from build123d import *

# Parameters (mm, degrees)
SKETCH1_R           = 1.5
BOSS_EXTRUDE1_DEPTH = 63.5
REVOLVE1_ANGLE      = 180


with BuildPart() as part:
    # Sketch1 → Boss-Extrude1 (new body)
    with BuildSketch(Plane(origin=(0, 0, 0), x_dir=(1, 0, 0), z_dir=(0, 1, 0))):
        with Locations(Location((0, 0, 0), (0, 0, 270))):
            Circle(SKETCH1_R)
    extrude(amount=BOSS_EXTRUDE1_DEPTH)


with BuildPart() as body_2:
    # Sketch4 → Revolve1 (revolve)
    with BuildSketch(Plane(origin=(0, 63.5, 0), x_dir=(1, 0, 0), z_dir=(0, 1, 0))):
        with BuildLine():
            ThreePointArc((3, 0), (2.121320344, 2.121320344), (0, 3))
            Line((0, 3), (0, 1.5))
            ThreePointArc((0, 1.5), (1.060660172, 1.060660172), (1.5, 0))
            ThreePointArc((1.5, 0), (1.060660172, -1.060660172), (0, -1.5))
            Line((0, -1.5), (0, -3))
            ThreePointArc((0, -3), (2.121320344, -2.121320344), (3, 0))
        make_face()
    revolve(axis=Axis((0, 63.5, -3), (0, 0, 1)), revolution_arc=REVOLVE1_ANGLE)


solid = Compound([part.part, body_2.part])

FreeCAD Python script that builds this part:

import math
import FreeCAD as App
import Part
import Sketcher

doc = App.newDocument("Part")
body = doc.addObject("PartDesign::Body", "Body")

sketch1 = body.newObject("Sketcher::SketchObject", "Sketch")
sketch1.AttachmentSupport = (doc.getObject("XZ_Plane"), [""])
sketch1.MapMode = "FlatFace"
sketch1.addGeometry(Part.Circle(App.Vector(0, 0, 0), App.Vector(0, 0, 1), 1.5), False)
sketch1.addConstraint(Sketcher.Constraint("Coincident", 0, 3, -1, 1))
sketch1.addConstraint(Sketcher.Constraint("Diameter", 0, 3.0))
pad1 = body.newObject("PartDesign::Pad", "Pad")
pad1.Profile = sketch1
pad1.Length = 63.5
pad1.Reversed = True
body2 = doc.addObject("PartDesign::Body", "Body001")

sketch2 = body2.newObject("Sketcher::SketchObject", "Sketch001")
sketch2.AttachmentSupport = (doc.getObject("XZ_Plane001"), [""])
sketch2.MapMode = "FlatFace"
sketch2.AttachmentOffset = App.Placement(App.Vector(0, 0, -63.5), App.Rotation())
sketch2.addGeometry(Part.ArcOfCircle(Part.Circle(App.Vector(0, 0, 0), App.Vector(0, 0, 1), 3), math.radians(-90), math.radians(0)), False)
sketch2.addGeometry(Part.LineSegment(App.Vector(0, -3, 0), App.Vector(0, -1.5, 0)), False)
sketch2.addGeometry(Part.ArcOfCircle(Part.Circle(App.Vector(0, 0, 0), App.Vector(0, 0, 1), 1.5), math.radians(-90), math.radians(0)), False)
sketch2.addGeometry(Part.ArcOfCircle(Part.Circle(App.Vector(0, 0, 0), App.Vector(0, 0, 1), 1.5), math.radians(0), math.radians(90)), False)
sketch2.addGeometry(Part.LineSegment(App.Vector(0, 1.5, 0), App.Vector(0, 3, 0)), False)
sketch2.addGeometry(Part.ArcOfCircle(Part.Circle(App.Vector(0, 0, 0), App.Vector(0, 0, 1), 3), math.radians(0), math.radians(90)), False)
sketch2.addConstraint(Sketcher.Constraint("Coincident", 0, 1, 1, 1))
sketch2.addConstraint(Sketcher.Constraint("Coincident", 1, 2, 2, 1))
sketch2.addConstraint(Sketcher.Constraint("Tangent", 2, 2, 3, 1))
sketch2.addConstraint(Sketcher.Constraint("Coincident", 3, 2, 4, 1))
sketch2.addConstraint(Sketcher.Constraint("Coincident", 4, 2, 5, 2))
sketch2.addConstraint(Sketcher.Constraint("Tangent", 5, 1, 0, 2))
sketch2.addConstraint(Sketcher.Constraint("Vertical", 1))
sketch2.addConstraint(Sketcher.Constraint("Vertical", 4))
sketch2.addConstraint(Sketcher.Constraint("Coincident", 0, 3, -1, 1))
sketch2.addConstraint(Sketcher.Constraint("Coincident", 2, 3, -1, 1))
sketch2.addConstraint(Sketcher.Constraint("Equal", 2, 3))
sketch2.addConstraint(Sketcher.Constraint("Equal", 0, 5))
sketch2.addConstraint(Sketcher.Constraint("PointOnObject", 0, 1, -2))
sketch2.addConstraint(Sketcher.Constraint("PointOnObject", 2, 2, -1))
sketch2.addConstraint(Sketcher.Constraint("PointOnObject", 3, 2, -2))
sketch2.addConstraint(Sketcher.Constraint("PointOnObject", 5, 1, -1))
sketch2.addConstraint(Sketcher.Constraint("Radius", 0, 3.0))
sketch2.addConstraint(Sketcher.Constraint("Radius", 2, 1.5))
revolution = body2.newObject("PartDesign::Revolution", "Revolution")
revolution.Profile = sketch2
revolution.ReferenceAxis = (sketch2, ["V_Axis"])
revolution.Angle = 180

doc.recompute()
